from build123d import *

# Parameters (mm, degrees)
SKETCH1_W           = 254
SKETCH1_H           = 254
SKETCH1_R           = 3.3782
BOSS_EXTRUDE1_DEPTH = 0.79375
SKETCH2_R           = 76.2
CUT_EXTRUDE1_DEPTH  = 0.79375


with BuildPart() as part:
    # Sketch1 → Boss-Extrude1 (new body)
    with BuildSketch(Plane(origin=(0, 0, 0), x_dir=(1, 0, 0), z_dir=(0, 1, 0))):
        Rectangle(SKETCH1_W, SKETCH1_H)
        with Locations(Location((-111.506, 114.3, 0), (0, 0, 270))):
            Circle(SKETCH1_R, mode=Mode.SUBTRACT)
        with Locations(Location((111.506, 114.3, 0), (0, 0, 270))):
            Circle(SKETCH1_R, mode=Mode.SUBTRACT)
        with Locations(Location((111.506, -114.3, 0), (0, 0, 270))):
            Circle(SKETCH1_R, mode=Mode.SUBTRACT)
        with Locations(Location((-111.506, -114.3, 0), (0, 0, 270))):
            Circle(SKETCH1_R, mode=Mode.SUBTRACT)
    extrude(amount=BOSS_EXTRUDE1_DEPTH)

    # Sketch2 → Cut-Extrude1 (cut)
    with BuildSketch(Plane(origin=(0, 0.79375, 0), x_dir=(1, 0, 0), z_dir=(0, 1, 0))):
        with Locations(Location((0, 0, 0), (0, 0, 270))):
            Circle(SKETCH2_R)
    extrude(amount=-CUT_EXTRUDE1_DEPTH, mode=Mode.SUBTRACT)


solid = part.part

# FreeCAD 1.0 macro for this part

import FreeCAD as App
import Part
import Sketcher

V = App.Vector
Q = App.Units.Quantity


def add_polygon(sketch, points):
    """Adds a closed chain of lines whose ends are joined by coincident constraints."""
    first, n = sketch.GeometryCount, len(points)
    for a, b in zip(points, points[1:] + points[:1]):
        sketch.addGeometry(Part.LineSegment(App.Vector(*a, 0), App.Vector(*b, 0)), False)
    for i in range(n):
        sketch.addConstraint(Sketcher.Constraint("Coincident", first + i, 2, first + (i + 1) % n, 1))

doc = App.newDocument("Part")
params = doc.addObject("Spreadsheet::Sheet", "Params")
for row, (alias, value) in enumerate([
    ("sketch1_width", "10 in"),
    ("sketch1_diameter", "0.266 in"),
    ("pad1_length", "0.03125 in"),
    ("sketch2_diameter", "6 in"),
    ("pocket1_length", "0.03125 in"),
], start=1):
    params.set(f"A{row}", alias)
    params.set(f"B{row}", "=" + value)
    params.setAlias(f"B{row}", alias)

body = doc.addObject("PartDesign::Body", "Body")

# Sketch on XZ plane
sketch1 = doc.addObject("Sketcher::SketchObject", "Sketch")
body.addObject(sketch1)
sketch1.AttachmentSupport = (doc.XZ_Plane, [""])
sketch1.MapMode = "FlatFace"
add_polygon(sketch1, [(-127, -127), (-127, 127), (127, 127), (127, -127)])  # lines 0-3
sketch1.addGeometry(Part.Circle(V(-111.5, 114.3, 0), V(0, 0, 1), 3.4), False)  # 4
sketch1.addGeometry(Part.Circle(V(111.5, 114.3, 0), V(0, 0, 1), 3.4), False)  # 5
sketch1.addGeometry(Part.Circle(V(-111.5, -114.3, 0), V(0, 0, 1), 3.4), False)  # 6
sketch1.addGeometry(Part.Circle(V(111.5, -114.3, 0), V(0, 0, 1), 3.4), False)  # 7
sketch1.addConstraint(Sketcher.Constraint("Vertical", 0))
sketch1.addConstraint(Sketcher.Constraint("Horizontal", 1))
sketch1.addConstraint(Sketcher.Constraint("Vertical", 2))
sketch1.addConstraint(Sketcher.Constraint("Horizontal", 3))
sketch1.addConstraint(Sketcher.Constraint("Equal", 4, 5))
sketch1.addConstraint(Sketcher.Constraint("Equal", 5, 6))
sketch1.addConstraint(Sketcher.Constraint("Equal", 6, 7))
sketch1.addConstraint(Sketcher.Constraint("Symmetric", 5, 3, 6, 3, -1, 1))
sketch1.addConstraint(Sketcher.Constraint("Symmetric", 4, 3, 7, 3, -1, 1))
sketch1.addConstraint(Sketcher.Constraint("Symmetric", 0, 2, 2, 2, -1, 1))
sketch1.addConstraint(Sketcher.Constraint("Symmetric", 4, 3, 5, 3, -2))
sketch1.addConstraint(Sketcher.Constraint("Equal", 3, 0))
sketch1.addConstraint(Sketcher.Constraint("DistanceX", 1, 1, 1, 2, Q("10 in")))
sketch1.addConstraint(Sketcher.Constraint("Diameter", 4, Q("0.266 in")))
sketch1.addConstraint(Sketcher.Constraint("DistanceY", 6, 3, 4, 3, Q("9 in")))
sketch1.addConstraint(Sketcher.Constraint("DistanceX", 4, 3, -1, 1, Q("4.39 in")))
sketch1.setExpression("Constraints[16]", "Params.sketch1_width")
sketch1.setExpression("Constraints[17]", "Params.sketch1_diameter")
pad1 = doc.addObject("PartDesign::Pad", "Pad")
body.addObject(pad1)
pad1.Profile = sketch1
pad1.setExpression("Length", "Params.pad1_length")
pad1.Reversed = True

# Sketch on XZ plane
sketch2 = doc.addObject("Sketcher::SketchObject", "Sketch001")
body.addObject(sketch2)
sketch2.AttachmentSupport = (doc.XZ_Plane, [""])
sketch2.MapMode = "FlatFace"
sketch2.AttachmentOffset = App.Placement(V(0, 0, -0.03125 * 25.4), App.Rotation())
sketch2.addGeometry(Part.Circle(V(0, 0, 0), V(0, 0, 1), 76), False)
sketch2.addConstraint(Sketcher.Constraint("Coincident", 0, 3, -1, 1))
sketch2.addConstraint(Sketcher.Constraint("Diameter", 0, Q("6 in")))
sketch2.setExpression("Constraints[1]", "Params.sketch2_diameter")
pocket1 = doc.addObject("PartDesign::Pocket", "Pocket")
body.addObject(pocket1)
pocket1.Profile = sketch2
pocket1.setExpression("Length", "Params.pocket1_length")
pocket1.Reversed = True

doc.recompute()
